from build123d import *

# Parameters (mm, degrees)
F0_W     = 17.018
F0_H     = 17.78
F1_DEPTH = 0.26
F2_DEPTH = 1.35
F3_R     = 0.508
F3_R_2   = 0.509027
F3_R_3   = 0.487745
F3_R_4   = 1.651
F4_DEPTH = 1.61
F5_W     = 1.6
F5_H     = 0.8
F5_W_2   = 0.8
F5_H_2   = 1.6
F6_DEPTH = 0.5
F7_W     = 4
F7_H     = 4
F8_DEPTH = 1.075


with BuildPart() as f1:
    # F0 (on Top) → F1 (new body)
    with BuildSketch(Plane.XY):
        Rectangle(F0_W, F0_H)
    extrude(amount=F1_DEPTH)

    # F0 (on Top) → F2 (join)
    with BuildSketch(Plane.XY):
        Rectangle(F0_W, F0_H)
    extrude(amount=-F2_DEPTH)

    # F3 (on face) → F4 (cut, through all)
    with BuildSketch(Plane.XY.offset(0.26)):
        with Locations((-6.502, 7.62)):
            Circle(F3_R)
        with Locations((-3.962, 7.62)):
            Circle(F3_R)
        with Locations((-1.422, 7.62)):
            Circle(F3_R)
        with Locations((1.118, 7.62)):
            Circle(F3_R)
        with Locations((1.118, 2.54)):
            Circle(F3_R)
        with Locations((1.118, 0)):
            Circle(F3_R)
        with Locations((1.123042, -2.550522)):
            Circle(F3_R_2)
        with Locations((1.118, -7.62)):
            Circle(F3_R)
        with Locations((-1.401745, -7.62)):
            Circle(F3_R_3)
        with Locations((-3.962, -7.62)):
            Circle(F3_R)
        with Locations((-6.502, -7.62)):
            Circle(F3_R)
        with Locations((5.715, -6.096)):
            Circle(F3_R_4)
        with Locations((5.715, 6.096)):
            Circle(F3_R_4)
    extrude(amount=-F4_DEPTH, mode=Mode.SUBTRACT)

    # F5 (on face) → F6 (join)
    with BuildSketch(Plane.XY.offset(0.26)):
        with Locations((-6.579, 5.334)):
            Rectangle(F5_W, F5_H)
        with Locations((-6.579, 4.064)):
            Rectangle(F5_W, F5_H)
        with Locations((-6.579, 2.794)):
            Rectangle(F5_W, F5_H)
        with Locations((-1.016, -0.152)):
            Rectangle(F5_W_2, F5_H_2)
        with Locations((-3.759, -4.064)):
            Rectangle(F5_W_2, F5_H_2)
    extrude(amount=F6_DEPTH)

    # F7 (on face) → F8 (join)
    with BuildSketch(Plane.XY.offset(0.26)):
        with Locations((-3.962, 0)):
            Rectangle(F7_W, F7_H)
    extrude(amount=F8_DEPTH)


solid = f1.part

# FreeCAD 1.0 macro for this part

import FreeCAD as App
import Part
import Sketcher
Q = App.Units.Quantity


def add_polygon(sketch, points):
    """Adds a closed chain of lines whose ends are joined by coincident constraints."""
    first, n = sketch.GeometryCount, len(points)
    for a, b in zip(points, points[1:] + points[:1]):
        sketch.addGeometry(Part.LineSegment(App.Vector(*a, 0), App.Vector(*b, 0)), False)
    for i in range(n):
        sketch.addConstraint(Sketcher.Constraint("Coincident", first + i, 2, first + (i + 1) % n, 1))

doc = App.newDocument("Part")
params = doc.addObject("Spreadsheet::Sheet", "Params")
for row, (alias, value) in enumerate([
    ("sketch1_height", "17.78 mm"),
    ("pad1_length", "0.26 mm"),
    ("sketch2_height", "17.78 mm"),
    ("pad2_length", "1.35 mm"),
    ("sketch4_width", "1.6 mm"),
    ("sketch4_width2", "0.8 mm"),
    ("pad3_length", "0.5 mm"),
    ("sketch5_width", "4 mm"),
    ("pad4_length", "1.075 mm"),
], start=1):
    params.set(f"A{row}", alias)
    params.set(f"B{row}", "=" + value)
    params.setAlias(f"B{row}", alias)

body = doc.addObject("PartDesign::Body", "Body")

# Sketch on XY plane
sketch1 = body.newObject("Sketcher::SketchObject", "Sketch")
sketch1.AttachmentSupport = (doc.getObject("XY_Plane"), [""])
sketch1.MapMode = "FlatFace"
add_polygon(sketch1, [(-9, 9), (-9, -9), (9, -9), (9, 9)])  # lines 0-3
sketch1.addConstraint([
    Sketcher.Constraint("Vertical", 0),
    Sketcher.Constraint("Horizontal", 1),
    Sketcher.Constraint("Vertical", 2),
    Sketcher.Constraint("Horizontal", 3),
    Sketcher.Constraint("Symmetric", 0, 2, 2, 2, -1, 1),
    Sketcher.Constraint("DistanceY", 0, 2, 0, 1, Q("17.78 mm")),
    Sketcher.Constraint("DistanceX", 1, 1, 1, 2, Q("17.018 mm")),
])
sketch1.setExpression("Constraints[9]", "Params.sketch1_height")
pad1 = body.newObject("PartDesign::Pad", "Pad")
pad1.Profile = sketch1
pad1.setExpression("Length", "Params.pad1_length")

# Sketch on XY plane
sketch2 = body.newObject("Sketcher::SketchObject", "Sketch001")
sketch2.AttachmentSupport = (doc.getObject("XY_Plane"), [""])
sketch2.MapMode = "FlatFace"
add_polygon(sketch2, [(-9, 9), (-9, -9), (9, -9), (9, 9)])  # lines 0-3
sketch2.addConstraint([
    Sketcher.Constraint("Vertical", 0),
    Sketcher.Constraint("Horizontal", 1),
    Sketcher.Constraint("Vertical", 2),
    Sketcher.Constraint("Horizontal", 3),
    Sketcher.Constraint("Symmetric", 0, 2, 2, 2, -1, 1),
    Sketcher.Constraint("DistanceY", 0, 2, 0, 1, Q("17.78 mm")),
    Sketcher.Constraint("DistanceX", 1, 1, 1, 2, Q("17.018 mm")),
])
sketch2.setExpression("Constraints[9]", "Params.sketch2_height")
pad2 = body.newObject("PartDesign::Pad", "Pad001")
pad2.Profile = sketch2
pad2.setExpression("Length", "Params.pad2_length")
pad2.Reversed = True

# Sketch on XY plane
sketch3 = body.newObject("Sketcher::SketchObject", "Sketch002")
sketch3.AttachmentSupport = (doc.getObject("XY_Plane"), [""])
sketch3.MapMode = "FlatFace"
sketch3.AttachmentOffset = App.Placement(App.Vector(0, 0, 0.26), App.Rotation())
sketch3.addGeometry([
    Part.Circle(App.Vector(-6.5, 7.62, 0), App.Vector(0, 0, 1), 0.51),  # 0
    Part.Circle(App.Vector(-3.96, 7.62, 0), App.Vector(0, 0, 1), 0.51),  # 1
    Part.Circle(App.Vector(-1.42, 7.62, 0), App.Vector(0, 0, 1), 0.51),  # 2
    Part.Circle(App.Vector(1.12, 7.62, 0), App.Vector(0, 0, 1), 0.51),  # 3
    Part.Circle(App.Vector(1.12, 2.54, 0), App.Vector(0, 0, 1), 0.51),  # 4
    Part.Circle(App.Vector(1.12, 0, 0), App.Vector(0, 0, 1), 0.51),  # 5
    Part.Circle(App.Vector(1.12, -2.55, 0), App.Vector(0, 0, 1), 0.51),  # 6
    Part.Circle(App.Vector(1.12, -7.62, 0), App.Vector(0, 0, 1), 0.51),  # 7
    Part.Circle(App.Vector(-1.4, -7.62, 0), App.Vector(0, 0, 1), 0.49),  # 8
    Part.Circle(App.Vector(-3.96, -7.62, 0), App.Vector(0, 0, 1), 0.51),  # 9
    Part.Circle(App.Vector(-6.5, -7.62, 0), App.Vector(0, 0, 1), 0.51),  # 10
    Part.Circle(App.Vector(5.71, -6.1, 0), App.Vector(0, 0, 1), 1.65),  # 11
    Part.Circle(App.Vector(5.71, 6.1, 0), App.Vector(0, 0, 1), 1.65),  # 12
], False)
sketch3.addConstraint([
    Sketcher.Constraint("Equal", 0, 1),
    Sketcher.Constraint("Equal", 1, 2),
    Sketcher.Constraint("Equal", 2, 3),
    Sketcher.Constraint("Equal", 3, 4),
    Sketcher.Constraint("Equal", 4, 5),
    Sketcher.Constraint("Equal", 5, 7),
    Sketcher.Constraint("Equal", 7, 9),
    Sketcher.Constraint("Equal", 9, 10),
    Sketcher.Constraint("Equal", 11, 12),
    Sketcher.Constraint("Symmetric", 3, 3, 7, 3, -1),
    Sketcher.Constraint("Symmetric", 1, 3, 9, 3, -1),
    Sketcher.Constraint("Symmetric", 0, 3, 10, 3, -1),
    Sketcher.Constraint("Symmetric", 11, 3, 12, 3, -1),
    Sketcher.Constraint("PointOnObject", 5, 3, -1),
    Sketcher.Constraint("Horizontal", 0, 3, 1, 3),
    Sketcher.Constraint("Horizontal", 1, 3, 2, 3),
    Sketcher.Constraint("Horizontal", 2, 3, 3, 3),
    Sketcher.Constraint("Horizontal", 7, 3, 8, 3),
    Sketcher.Constraint("Vertical", 3, 3, 4, 3),
    Sketcher.Constraint("Vertical", 4, 3, 5, 3),
    Sketcher.Constraint("Diameter", 0, Q("1.016 mm")),
    Sketcher.Constraint("Diameter", 11, Q("3.302 mm")),
    Sketcher.Constraint("Diameter", 8, Q("0.97549 mm")),
    Sketcher.Constraint("DistanceY", -1, 1, 0, 3, Q("7.62 mm")),
    Sketcher.Constraint("DistanceY", -1, 1, 4, 3, Q("2.54 mm")),
    Sketcher.Constraint("DistanceX", 0, 3, 1, 3, Q("2.54 mm")),
    Sketcher.Constraint("DistanceX", 1, 3, 2, 3, Q("2.54 mm")),
    Sketcher.Constraint("DistanceX", 2, 3, 3, 3, Q("2.54 mm")),
    Sketcher.Constraint("Diameter", 6, Q("1.018054 mm")),
    Sketcher.Constraint("DistanceX", 0, 3, -1, 1, Q("6.502 mm")),
    Sketcher.Constraint("DistanceX", -1, 1, 11, 3, Q("5.715 mm")),
    Sketcher.Constraint("DistanceY", 11, 3, -1, 1, Q("6.096 mm")),
    Sketcher.Constraint("DistanceY", 6, 3, -1, 1, Q("2.550522 mm")),
    Sketcher.Constraint("DistanceX", 5, 3, 6, 3, Q("0.005042 mm")),
    Sketcher.Constraint("DistanceX", 8, 3, -1, 1, Q("1.401745 mm")),
])
pocket1 = body.newObject("PartDesign::Pocket", "Pocket")
pocket1.Profile = sketch3
pocket1.Type = "ThroughAll"

# Sketch on XY plane
sketch4 = body.newObject("Sketcher::SketchObject", "Sketch003")
sketch4.AttachmentSupport = (doc.getObject("XY_Plane"), [""])
sketch4.MapMode = "FlatFace"
sketch4.AttachmentOffset = App.Placement(App.Vector(0, 0, 0.26), App.Rotation())
add_polygon(sketch4, [(-7.4, 5.7), (-7.4, 4.9), (-5.8, 4.9), (-5.8, 5.7)])  # lines 0-3
add_polygon(sketch4, [(-7.4, 4.5), (-7.4, 3.7), (-5.8, 3.7), (-5.8, 4.5)])  # lines 4-7
add_polygon(sketch4, [(-7.4, 3.2), (-7.4, 2.4), (-5.8, 2.4), (-5.8, 3.2)])  # lines 8-11
add_polygon(sketch4, [(-1.4, 0.6), (-1.4, -1), (-0.6, -1), (-0.6, 0.6)])  # lines 12-15
add_polygon(sketch4, [(-4.2, -3.3), (-4.2, -4.9), (-3.4, -4.9), (-3.4, -3.3)])  # lines 16-19
sketch4.addConstraint([
    Sketcher.Constraint("Vertical", 0),
    Sketcher.Constraint("Horizontal", 1),
    Sketcher.Constraint("Vertical", 2),
    Sketcher.Constraint("Horizontal", 3),
    Sketcher.Constraint("Vertical", 4),
    Sketcher.Constraint("Horizontal", 5),
    Sketcher.Constraint("Vertical", 6),
    Sketcher.Constraint("Horizontal", 7),
    Sketcher.Constraint("Vertical", 8),
    Sketcher.Constraint("Horizontal", 9),
    Sketcher.Constraint("Vertical", 10),
    Sketcher.Constraint("Horizontal", 11),
    Sketcher.Constraint("Vertical", 12),
    Sketcher.Constraint("Horizontal", 13),
    Sketcher.Constraint("Vertical", 14),
    Sketcher.Constraint("Horizontal", 15),
    Sketcher.Constraint("Vertical", 16),
    Sketcher.Constraint("Horizontal", 17),
    Sketcher.Constraint("Vertical", 18),
    Sketcher.Constraint("Horizontal", 19),
    Sketcher.Constraint("Vertical", 3, 2, 4, 2),
    Sketcher.Constraint("Vertical", 2, 2, 5, 2),
    Sketcher.Constraint("Vertical", 7, 2, 8, 2),
    Sketcher.Constraint("Vertical", 6, 2, 9, 2),
    Sketcher.Constraint("Equal", 15, 17),
    Sketcher.Constraint("Equal", 19, 0),
    Sketcher.Constraint("Equal", 2, 4),
    Sketcher.Constraint("Equal", 6, 8),
    Sketcher.Constraint("Equal", 11, 12),
    Sketcher.Constraint("Equal", 14, 16),
    Sketcher.Constraint("DistanceX", 1, 1, 1, 2, Q("1.6 mm")),
    Sketcher.Constraint("DistanceX", 13, 1, 13, 2, Q("0.8 mm")),
    Sketcher.Constraint("DistanceY", 4, 2, 0, 2, Q("1.27 mm")),
    Sketcher.Constraint("DistanceY", 8, 2, 4, 2, Q("1.27 mm")),
    Sketcher.Constraint("DistanceX", 9, 2, 16, 2, Q("1.62 mm")),
    Sketcher.Constraint("DistanceX", 0, 2, -1, 1, Q("7.379 mm")),
    Sketcher.Constraint("DistanceY", -1, 1, 0, 2, Q("4.934 mm")),
    Sketcher.Constraint("DistanceX", 12, 2, -1, 1, Q("1.416 mm")),
    Sketcher.Constraint("DistanceY", 12, 2, -1, 1, Q("0.952 mm")),
    Sketcher.Constraint("DistanceY", 16, 2, -1, 1, Q("4.864 mm")),
])
sketch4.setExpression("Constraints[50]", "Params.sketch4_width")
sketch4.setExpression("Constraints[51]", "Params.sketch4_width2")
pad3 = body.newObject("PartDesign::Pad", "Pad002")
pad3.Profile = sketch4
pad3.setExpression("Length", "Params.pad3_length")

# Sketch on XY plane
sketch5 = body.newObject("Sketcher::SketchObject", "Sketch004")
sketch5.AttachmentSupport = (doc.getObject("XY_Plane"), [""])
sketch5.MapMode = "FlatFace"
sketch5.AttachmentOffset = App.Placement(App.Vector(0, 0, 0.26), App.Rotation())
add_polygon(sketch5, [(-6, 2), (-6, -2), (-2, -2), (-2, 2)])  # lines 0-3
sketch5.addConstraint([
    Sketcher.Constraint("Vertical", 0),
    Sketcher.Constraint("Horizontal", 1),
    Sketcher.Constraint("Vertical", 2),
    Sketcher.Constraint("Horizontal", 3),
    Sketcher.Constraint("Equal", 3, 0),
    Sketcher.Constraint("DistanceX", 1, 1, 1, 2, Q("4 mm")),
    Sketcher.Constraint("DistanceY", 0, 2, -1, 1, Q("2 mm")),
    Sketcher.Constraint("DistanceX", 0, 2, -1, 1, Q("5.962 mm")),
])
sketch5.setExpression("Constraints[9]", "Params.sketch5_width")
pad4 = body.newObject("PartDesign::Pad", "Pad003")
pad4.Profile = sketch5
pad4.setExpression("Length", "Params.pad4_length")

doc.recompute()
